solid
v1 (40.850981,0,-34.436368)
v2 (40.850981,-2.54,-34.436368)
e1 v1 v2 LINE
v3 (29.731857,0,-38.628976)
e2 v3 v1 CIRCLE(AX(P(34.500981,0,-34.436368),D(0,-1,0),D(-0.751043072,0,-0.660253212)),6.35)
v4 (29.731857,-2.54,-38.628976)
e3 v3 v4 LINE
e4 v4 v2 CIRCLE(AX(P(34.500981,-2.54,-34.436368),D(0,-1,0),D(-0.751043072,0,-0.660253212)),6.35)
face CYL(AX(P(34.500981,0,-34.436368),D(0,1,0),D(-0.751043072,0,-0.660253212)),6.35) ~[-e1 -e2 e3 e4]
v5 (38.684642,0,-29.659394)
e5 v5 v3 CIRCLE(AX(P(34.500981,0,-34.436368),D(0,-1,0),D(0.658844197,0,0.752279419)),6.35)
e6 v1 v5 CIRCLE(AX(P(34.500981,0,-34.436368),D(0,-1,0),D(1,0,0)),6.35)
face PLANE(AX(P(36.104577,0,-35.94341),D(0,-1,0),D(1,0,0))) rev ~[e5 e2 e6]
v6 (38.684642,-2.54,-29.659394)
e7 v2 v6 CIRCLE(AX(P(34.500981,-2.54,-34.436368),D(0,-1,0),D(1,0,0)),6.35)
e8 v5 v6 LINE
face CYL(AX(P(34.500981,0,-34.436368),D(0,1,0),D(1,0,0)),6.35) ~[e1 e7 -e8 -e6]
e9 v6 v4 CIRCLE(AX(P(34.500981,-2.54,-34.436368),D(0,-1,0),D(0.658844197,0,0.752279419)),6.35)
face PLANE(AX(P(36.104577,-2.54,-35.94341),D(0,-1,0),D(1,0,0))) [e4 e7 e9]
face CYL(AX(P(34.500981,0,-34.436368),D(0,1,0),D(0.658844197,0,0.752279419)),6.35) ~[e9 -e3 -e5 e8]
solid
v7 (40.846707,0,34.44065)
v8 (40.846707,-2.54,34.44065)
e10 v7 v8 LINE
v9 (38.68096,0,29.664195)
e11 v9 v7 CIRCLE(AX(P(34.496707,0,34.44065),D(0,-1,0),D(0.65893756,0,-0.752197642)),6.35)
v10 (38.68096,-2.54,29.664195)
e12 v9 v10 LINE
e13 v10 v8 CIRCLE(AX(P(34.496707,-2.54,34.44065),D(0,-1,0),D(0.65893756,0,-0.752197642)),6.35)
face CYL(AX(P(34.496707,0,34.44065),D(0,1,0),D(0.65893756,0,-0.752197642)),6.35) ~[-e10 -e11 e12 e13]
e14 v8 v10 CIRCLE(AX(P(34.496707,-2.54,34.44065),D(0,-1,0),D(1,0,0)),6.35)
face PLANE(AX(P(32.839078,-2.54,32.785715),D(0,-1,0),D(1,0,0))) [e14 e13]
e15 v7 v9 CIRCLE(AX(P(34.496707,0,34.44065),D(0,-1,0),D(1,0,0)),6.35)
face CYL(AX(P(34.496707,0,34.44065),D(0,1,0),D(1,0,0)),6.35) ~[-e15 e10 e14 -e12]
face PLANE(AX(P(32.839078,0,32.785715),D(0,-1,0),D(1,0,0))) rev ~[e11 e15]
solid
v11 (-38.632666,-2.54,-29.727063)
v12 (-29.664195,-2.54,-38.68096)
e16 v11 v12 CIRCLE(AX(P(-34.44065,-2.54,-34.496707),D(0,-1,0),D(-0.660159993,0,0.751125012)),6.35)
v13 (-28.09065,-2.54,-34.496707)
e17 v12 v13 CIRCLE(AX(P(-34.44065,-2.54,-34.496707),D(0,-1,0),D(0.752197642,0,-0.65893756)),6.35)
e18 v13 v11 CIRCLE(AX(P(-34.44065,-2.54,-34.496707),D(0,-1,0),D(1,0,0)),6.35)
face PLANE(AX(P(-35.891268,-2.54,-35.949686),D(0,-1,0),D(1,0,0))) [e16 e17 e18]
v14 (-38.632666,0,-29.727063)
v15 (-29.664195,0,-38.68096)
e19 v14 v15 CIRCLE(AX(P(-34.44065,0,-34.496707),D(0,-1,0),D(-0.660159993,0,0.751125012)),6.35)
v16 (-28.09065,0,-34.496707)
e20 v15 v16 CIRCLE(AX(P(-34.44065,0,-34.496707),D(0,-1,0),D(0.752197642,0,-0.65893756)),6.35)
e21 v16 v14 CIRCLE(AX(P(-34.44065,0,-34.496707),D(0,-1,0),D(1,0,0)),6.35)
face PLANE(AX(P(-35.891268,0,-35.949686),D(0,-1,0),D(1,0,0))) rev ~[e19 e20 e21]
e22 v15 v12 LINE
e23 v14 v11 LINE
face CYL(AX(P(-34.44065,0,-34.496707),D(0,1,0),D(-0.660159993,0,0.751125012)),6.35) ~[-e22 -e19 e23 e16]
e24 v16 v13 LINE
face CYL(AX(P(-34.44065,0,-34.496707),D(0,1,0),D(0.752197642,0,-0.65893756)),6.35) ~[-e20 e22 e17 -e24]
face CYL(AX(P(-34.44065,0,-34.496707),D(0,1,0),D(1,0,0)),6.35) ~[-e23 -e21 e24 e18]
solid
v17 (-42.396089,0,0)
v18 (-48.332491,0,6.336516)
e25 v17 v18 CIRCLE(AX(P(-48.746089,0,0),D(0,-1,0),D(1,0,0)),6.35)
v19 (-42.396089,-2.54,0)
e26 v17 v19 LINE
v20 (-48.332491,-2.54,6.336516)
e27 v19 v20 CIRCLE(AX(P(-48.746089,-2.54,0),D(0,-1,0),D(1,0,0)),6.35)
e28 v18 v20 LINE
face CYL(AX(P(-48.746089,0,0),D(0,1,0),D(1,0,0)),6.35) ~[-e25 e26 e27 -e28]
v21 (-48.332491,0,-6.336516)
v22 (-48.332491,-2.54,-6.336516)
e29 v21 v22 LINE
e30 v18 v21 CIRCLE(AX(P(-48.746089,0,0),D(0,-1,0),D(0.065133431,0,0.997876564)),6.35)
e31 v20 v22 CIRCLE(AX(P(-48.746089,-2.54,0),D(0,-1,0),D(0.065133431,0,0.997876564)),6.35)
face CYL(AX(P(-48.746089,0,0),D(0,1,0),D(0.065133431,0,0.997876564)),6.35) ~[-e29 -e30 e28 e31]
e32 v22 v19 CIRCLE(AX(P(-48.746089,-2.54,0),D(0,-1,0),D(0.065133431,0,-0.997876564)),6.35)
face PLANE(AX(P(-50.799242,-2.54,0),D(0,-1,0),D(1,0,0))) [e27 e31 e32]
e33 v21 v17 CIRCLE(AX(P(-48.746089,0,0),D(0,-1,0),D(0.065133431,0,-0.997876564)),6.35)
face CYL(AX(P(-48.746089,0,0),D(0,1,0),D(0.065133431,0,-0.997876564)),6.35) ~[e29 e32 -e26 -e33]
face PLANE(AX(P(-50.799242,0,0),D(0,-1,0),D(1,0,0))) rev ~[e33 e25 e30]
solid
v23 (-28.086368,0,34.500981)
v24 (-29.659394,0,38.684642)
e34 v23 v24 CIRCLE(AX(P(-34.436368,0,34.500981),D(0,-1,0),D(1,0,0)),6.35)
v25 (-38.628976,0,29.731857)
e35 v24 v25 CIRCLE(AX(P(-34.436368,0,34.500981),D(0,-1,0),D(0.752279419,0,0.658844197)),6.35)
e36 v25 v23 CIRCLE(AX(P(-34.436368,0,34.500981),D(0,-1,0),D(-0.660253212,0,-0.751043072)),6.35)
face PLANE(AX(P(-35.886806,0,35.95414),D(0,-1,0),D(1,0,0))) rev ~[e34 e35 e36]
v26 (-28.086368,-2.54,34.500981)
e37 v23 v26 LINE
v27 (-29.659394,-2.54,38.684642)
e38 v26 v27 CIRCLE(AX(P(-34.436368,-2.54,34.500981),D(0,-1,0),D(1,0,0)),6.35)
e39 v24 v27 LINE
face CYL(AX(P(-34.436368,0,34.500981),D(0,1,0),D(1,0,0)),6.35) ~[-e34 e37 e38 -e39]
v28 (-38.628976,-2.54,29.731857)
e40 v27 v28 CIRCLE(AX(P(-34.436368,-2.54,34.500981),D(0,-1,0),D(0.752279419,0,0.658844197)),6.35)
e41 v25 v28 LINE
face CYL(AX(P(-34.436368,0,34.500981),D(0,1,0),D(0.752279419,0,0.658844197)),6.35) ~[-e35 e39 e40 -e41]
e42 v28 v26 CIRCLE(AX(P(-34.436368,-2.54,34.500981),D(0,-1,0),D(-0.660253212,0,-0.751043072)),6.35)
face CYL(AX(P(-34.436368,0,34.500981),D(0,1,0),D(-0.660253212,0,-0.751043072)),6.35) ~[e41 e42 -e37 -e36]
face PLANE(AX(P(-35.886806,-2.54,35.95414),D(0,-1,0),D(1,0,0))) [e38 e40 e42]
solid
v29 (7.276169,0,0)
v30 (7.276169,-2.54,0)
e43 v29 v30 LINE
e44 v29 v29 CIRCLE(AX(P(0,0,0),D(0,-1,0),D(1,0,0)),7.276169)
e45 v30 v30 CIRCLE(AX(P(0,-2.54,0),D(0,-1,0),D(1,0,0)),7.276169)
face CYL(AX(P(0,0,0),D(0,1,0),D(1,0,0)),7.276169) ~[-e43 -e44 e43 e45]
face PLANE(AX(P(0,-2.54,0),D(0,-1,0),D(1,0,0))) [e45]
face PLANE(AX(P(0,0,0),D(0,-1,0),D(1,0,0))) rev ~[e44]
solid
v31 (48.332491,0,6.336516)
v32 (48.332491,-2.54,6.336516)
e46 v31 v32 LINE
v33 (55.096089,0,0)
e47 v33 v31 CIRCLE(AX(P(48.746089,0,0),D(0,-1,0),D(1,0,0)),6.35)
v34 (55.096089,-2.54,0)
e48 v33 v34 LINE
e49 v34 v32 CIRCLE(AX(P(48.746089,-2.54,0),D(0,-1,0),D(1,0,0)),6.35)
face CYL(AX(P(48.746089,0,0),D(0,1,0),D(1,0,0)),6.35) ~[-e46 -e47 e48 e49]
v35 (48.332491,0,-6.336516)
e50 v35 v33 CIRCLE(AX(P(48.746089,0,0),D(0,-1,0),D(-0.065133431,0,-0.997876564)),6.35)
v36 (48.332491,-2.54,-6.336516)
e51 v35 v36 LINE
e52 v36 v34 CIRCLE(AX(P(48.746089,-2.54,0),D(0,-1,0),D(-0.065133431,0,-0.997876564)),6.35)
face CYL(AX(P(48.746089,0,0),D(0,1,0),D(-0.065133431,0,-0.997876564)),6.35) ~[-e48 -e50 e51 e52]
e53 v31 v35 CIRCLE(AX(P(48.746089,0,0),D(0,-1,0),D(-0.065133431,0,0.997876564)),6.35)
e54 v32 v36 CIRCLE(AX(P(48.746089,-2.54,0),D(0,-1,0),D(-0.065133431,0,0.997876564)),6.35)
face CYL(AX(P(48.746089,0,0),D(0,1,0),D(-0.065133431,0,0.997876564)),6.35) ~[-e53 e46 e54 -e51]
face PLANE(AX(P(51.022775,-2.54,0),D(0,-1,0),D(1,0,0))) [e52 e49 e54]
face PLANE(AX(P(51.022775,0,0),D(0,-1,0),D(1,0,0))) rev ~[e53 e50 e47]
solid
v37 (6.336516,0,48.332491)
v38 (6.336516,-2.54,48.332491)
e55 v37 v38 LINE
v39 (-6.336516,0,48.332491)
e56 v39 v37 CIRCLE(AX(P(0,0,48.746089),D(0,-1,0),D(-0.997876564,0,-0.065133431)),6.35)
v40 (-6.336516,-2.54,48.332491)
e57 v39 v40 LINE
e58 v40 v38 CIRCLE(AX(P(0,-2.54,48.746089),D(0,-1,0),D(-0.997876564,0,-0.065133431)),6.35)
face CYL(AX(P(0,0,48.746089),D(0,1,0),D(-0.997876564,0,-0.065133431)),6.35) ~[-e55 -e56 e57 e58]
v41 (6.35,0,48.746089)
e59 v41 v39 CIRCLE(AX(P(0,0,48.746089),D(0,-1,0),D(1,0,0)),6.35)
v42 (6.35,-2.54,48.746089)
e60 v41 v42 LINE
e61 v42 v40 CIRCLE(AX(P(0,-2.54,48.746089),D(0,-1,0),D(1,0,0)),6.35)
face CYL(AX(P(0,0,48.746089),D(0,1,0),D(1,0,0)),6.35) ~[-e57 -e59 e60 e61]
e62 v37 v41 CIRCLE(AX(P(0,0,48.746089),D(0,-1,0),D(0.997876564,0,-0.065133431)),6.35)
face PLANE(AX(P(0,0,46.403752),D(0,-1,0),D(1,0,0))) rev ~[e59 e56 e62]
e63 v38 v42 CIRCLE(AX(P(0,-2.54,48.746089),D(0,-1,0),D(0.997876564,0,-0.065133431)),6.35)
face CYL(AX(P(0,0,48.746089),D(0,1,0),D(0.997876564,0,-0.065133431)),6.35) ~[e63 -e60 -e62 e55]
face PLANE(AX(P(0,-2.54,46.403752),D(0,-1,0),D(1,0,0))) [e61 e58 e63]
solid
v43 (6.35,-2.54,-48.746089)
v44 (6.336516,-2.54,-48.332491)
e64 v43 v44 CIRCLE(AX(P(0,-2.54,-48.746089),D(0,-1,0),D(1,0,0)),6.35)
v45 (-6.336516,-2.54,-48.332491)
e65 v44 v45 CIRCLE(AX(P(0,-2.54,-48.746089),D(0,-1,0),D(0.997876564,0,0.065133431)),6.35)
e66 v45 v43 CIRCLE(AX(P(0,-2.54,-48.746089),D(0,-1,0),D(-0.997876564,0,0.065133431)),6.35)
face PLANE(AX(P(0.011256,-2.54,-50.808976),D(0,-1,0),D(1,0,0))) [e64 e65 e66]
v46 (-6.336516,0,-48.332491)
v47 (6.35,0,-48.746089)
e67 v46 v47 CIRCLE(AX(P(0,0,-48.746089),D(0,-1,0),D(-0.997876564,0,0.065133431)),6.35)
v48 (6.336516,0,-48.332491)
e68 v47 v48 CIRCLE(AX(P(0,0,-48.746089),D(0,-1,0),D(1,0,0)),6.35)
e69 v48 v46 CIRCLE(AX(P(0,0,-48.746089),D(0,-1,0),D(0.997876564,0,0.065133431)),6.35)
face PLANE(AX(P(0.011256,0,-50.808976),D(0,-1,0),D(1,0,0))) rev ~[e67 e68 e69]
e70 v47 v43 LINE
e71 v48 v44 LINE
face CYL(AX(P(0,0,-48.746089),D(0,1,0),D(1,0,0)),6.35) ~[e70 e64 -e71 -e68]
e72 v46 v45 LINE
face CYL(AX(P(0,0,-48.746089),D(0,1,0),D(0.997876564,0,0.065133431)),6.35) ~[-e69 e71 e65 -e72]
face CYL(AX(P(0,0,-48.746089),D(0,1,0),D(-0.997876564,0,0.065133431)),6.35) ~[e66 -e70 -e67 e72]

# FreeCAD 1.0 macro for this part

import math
import FreeCAD as App
import Part
import Sketcher
from FreeCAD import Vector
Q = App.Units.Quantity

doc = App.newDocument("Part")
params = doc.addObject("Spreadsheet::Sheet", "Params")
for row, (alias, value) in enumerate([
    ("sketch1_radius", "0.25 in"),
    ("pad1_length", "0.1 in"),
    ("sketch2_radius", "0.25 in"),
    ("pad2_length", "0.1 in"),
    ("sketch3_radius", "0.25 in"),
    ("pad3_length", "0.1 in"),
    ("pad4_length", "0.1 in"),
    ("sketch5_radius", "0.25 in"),
    ("pad5_length", "0.1 in"),
    ("sketch6_radius", "0.25 in"),
    ("pad6_length", "0.1 in"),
    ("sketch7_radius", "0.25 in"),
    ("pad7_length", "0.1 in"),
    ("sketch8_radius", "0.25 in"),
    ("pad8_length", "0.1 in"),
    ("sketch9_radius", "0.25 in"),
    ("pad9_length", "0.1 in"),
], start=1):
    params.set(f"A{row}", alias)
    params.set(f"B{row}", "=" + value)
    params.setAlias(f"B{row}", alias)

body = doc.addObject("PartDesign::Body", "Body")

# Sketch on XZ plane
sketch1 = body.newObject("Sketcher::SketchObject", "Sketch")
sketch1.AttachmentSupport = (doc.getObject("XZ_Plane"), [""])
sketch1.MapMode = "FlatFace"
sketch1.addGeometry(Part.ArcOfCircle(Part.Circle(Vector(-34.436368, 34.500981, 0), Vector(0, 0, 1), 6.35), math.radians(41.211784), math.radians(228.680813)), False)
sketch1.addGeometry(Part.ArcOfCircle(Part.Circle(Vector(-34.436368, 34.500981, 0), Vector(0, 0, 1), 6.35), math.radians(-131.319187), math.radians(0)), False)
sketch1.addGeometry(Part.ArcOfCircle(Part.Circle(Vector(-34.436368, 34.500981, 0), Vector(0, 0, 1), 6.35), math.radians(0), math.radians(41.211784)), False)
sketch1.addConstraint(Sketcher.Constraint("Tangent", 0, 2, 1, 1))
sketch1.addConstraint(Sketcher.Constraint("Tangent", 1, 2, 2, 1))
sketch1.addConstraint(Sketcher.Constraint("Tangent", 2, 2, 0, 1))
sketch1.addConstraint(Sketcher.Constraint("Horizontal", 2, 3, 1, 2))
sketch1.addConstraint(Sketcher.Constraint("Radius", 0, Q("0.25 in")))
sketch1.addConstraint(Sketcher.Constraint("DistanceX", 0, 3, -1, 1, 34.436368))
sketch1.addConstraint(Sketcher.Constraint("DistanceY", -1, 1, 0, 3, 34.500981))
sketch1.addConstraint(Sketcher.Constraint("DistanceY", -1, 1, 2, 2, 38.684642))
sketch1.addConstraint(Sketcher.Constraint("DistanceX", 0, 2, -1, 1, 38.628976))
sketch1.setExpression("Constraints[4]", "Params.sketch1_radius")
pad1 = body.newObject("PartDesign::Pad", "Pad")
pad1.Profile = sketch1
pad1.setExpression("Length", "Params.pad1_length")
body2 = doc.addObject("PartDesign::Body", "Body001")

# Sketch on XZ plane
sketch2 = body2.newObject("Sketcher::SketchObject", "Sketch001")
sketch2.AttachmentSupport = (doc.getObject("XZ_Plane001"), [""])
sketch2.MapMode = "FlatFace"
sketch2.addGeometry(Part.ArcOfCircle(Part.Circle(Vector(0, 48.746089, 0), Vector(0, 0, 1), 6.35), math.radians(-176.265486), math.radians(-3.734514)), False)
sketch2.addGeometry(Part.ArcOfCircle(Part.Circle(Vector(0, 48.746089, 0), Vector(0, 0, 1), 6.35), math.radians(-3.734514), math.radians(0)), False)
sketch2.addGeometry(Part.ArcOfCircle(Part.Circle(Vector(0, 48.746089, 0), Vector(0, 0, 1), 6.35), math.radians(0), math.radians(183.734514)), False)
sketch2.addConstraint(Sketcher.Constraint("Tangent", 0, 2, 1, 1))
sketch2.addConstraint(Sketcher.Constraint("Tangent", 1, 2, 2, 1))
sketch2.addConstraint(Sketcher.Constraint("Tangent", 2, 2, 0, 1))
sketch2.addConstraint(Sketcher.Constraint("Symmetric", 0, 2, 2, 2, -2))
sketch2.addConstraint(Sketcher.Constraint("Horizontal", 2, 3, 1, 2))
sketch2.addConstraint(Sketcher.Constraint("Radius", 0, Q("0.25 in")))
sketch2.addConstraint(Sketcher.Constraint("DistanceY", -1, 1, 0, 3, 48.746089))
sketch2.addConstraint(Sketcher.Constraint("DistanceY", -1, 1, 0, 2, 48.332491))
sketch2.setExpression("Constraints[5]", "Params.sketch2_radius")
pad2 = body2.newObject("PartDesign::Pad", "Pad001")
pad2.Profile = sketch2
pad2.setExpression("Length", "Params.pad2_length")
body3 = doc.addObject("PartDesign::Body", "Body002")

# Sketch on XZ plane
sketch3 = body3.newObject("Sketcher::SketchObject", "Sketch002")
sketch3.AttachmentSupport = (doc.getObject("XZ_Plane002"), [""])
sketch3.MapMode = "FlatFace"
sketch3.addGeometry(Part.ArcOfCircle(Part.Circle(Vector(34.496707, 34.44065, 0), Vector(0, 0, 1), 6.35), math.radians(-48.781105), math.radians(0)), False)
sketch3.addGeometry(Part.ArcOfCircle(Part.Circle(Vector(34.496707, 34.44065, 0), Vector(0, 0, 1), 6.35), math.radians(0), math.radians(311.218895)), False)
sketch3.addConstraint(Sketcher.Constraint("Tangent", 0, 1, 1, 2))
sketch3.addConstraint(Sketcher.Constraint("Coincident", 1, 1, 0, 2))
sketch3.addConstraint(Sketcher.Constraint("Horizontal", 0, 3, 1, 1))
sketch3.addConstraint(Sketcher.Constraint("Radius", 0, Q("0.25 in")))
sketch3.addConstraint(Sketcher.Constraint("DistanceY", -1, 1, 0, 3, 34.44065))
sketch3.addConstraint(Sketcher.Constraint("DistanceX", -1, 1, 0, 1, 38.68096))
sketch3.addConstraint(Sketcher.Constraint("DistanceX", -1, 1, 0, 3, 34.496707))
sketch3.setExpression("Constraints[3]", "Params.sketch3_radius")
pad3 = body3.newObject("PartDesign::Pad", "Pad002")
pad3.Profile = sketch3
pad3.setExpression("Length", "Params.pad3_length")
body4 = doc.addObject("PartDesign::Body", "Body003")

# Sketch on XZ plane
sketch4 = body4.newObject("Sketcher::SketchObject", "Sketch003")
sketch4.AttachmentSupport = (doc.getObject("XZ_Plane003"), [""])
sketch4.MapMode = "FlatFace"
sketch4.addGeometry(Part.Circle(Vector(0, 0, 0), Vector(0, 0, 1), 7.276169), False)
sketch4.addConstraint(Sketcher.Constraint("Coincident", 0, 3, -1, 1))
sketch4.addConstraint(Sketcher.Constraint("Diameter", 0, 14.552338))
pad4 = body4.newObject("PartDesign::Pad", "Pad003")
pad4.Profile = sketch4
pad4.setExpression("Length", "Params.pad4_length")
body5 = doc.addObject("PartDesign::Body", "Body004")

# Sketch on XZ plane
sketch5 = body5.newObject("Sketcher::SketchObject", "Sketch004")
sketch5.AttachmentSupport = (doc.getObject("XZ_Plane004"), [""])
sketch5.MapMode = "FlatFace"
sketch5.addGeometry(Part.ArcOfCircle(Part.Circle(Vector(48.746089, 0, 0), Vector(0, 0, 1), 6.35), math.radians(0), math.radians(93.734514)), False)
sketch5.addGeometry(Part.ArcOfCircle(Part.Circle(Vector(48.746089, 0, 0), Vector(0, 0, 1), 6.35), math.radians(93.734514), math.radians(266.265486)), False)
sketch5.addGeometry(Part.ArcOfCircle(Part.Circle(Vector(48.746089, 0, 0), Vector(0, 0, 1), 6.35), math.radians(-93.734514), math.radians(0)), False)
sketch5.addConstraint(Sketcher.Constraint("Tangent", 0, 2, 1, 1))
sketch5.addConstraint(Sketcher.Constraint("Tangent", 1, 2, 2, 1))
sketch5.addConstraint(Sketcher.Constraint("Tangent", 2, 2, 0, 1))
sketch5.addConstraint(Sketcher.Constraint("Symmetric", 0, 2, 1, 2, -1))
sketch5.addConstraint(Sketcher.Constraint("PointOnObject", 2, 2, -1))
sketch5.addConstraint(Sketcher.Constraint("Radius", 0, Q("0.25 in")))
sketch5.addConstraint(Sketcher.Constraint("DistanceX", -1, 1, 0, 3, 48.746089))
sketch5.addConstraint(Sketcher.Constraint("DistanceX", -1, 1, 0, 2, 48.332491))
sketch5.setExpression("Constraints[5]", "Params.sketch5_radius")
pad5 = body5.newObject("PartDesign::Pad", "Pad004")
pad5.Profile = sketch5
pad5.setExpression("Length", "Params.pad5_length")
body6 = doc.addObject("PartDesign::Body", "Body005")

# Sketch on XZ plane
sketch6 = body6.newObject("Sketcher::SketchObject", "Sketch005")
sketch6.AttachmentSupport = (doc.getObject("XZ_Plane005"), [""])
sketch6.MapMode = "FlatFace"
sketch6.addGeometry(Part.ArcOfCircle(Part.Circle(Vector(34.500981, -34.436368, 0), Vector(0, 0, 1), 6.35), math.radians(0), math.radians(48.788216)), False)
sketch6.addGeometry(Part.ArcOfCircle(Part.Circle(Vector(34.500981, -34.436368, 0), Vector(0, 0, 1), 6.35), math.radians(48.788216), math.radians(221.319187)), False)
sketch6.addGeometry(Part.ArcOfCircle(Part.Circle(Vector(34.500981, -34.436368, 0), Vector(0, 0, 1), 6.35), math.radians(-138.680813), math.radians(0)), False)
sketch6.addConstraint(Sketcher.Constraint("Tangent", 0, 2, 1, 1))
sketch6.addConstraint(Sketcher.Constraint("Tangent", 1, 2, 2, 1))
sketch6.addConstraint(Sketcher.Constraint("Tangent", 2, 2, 0, 1))
sketch6.addConstraint(Sketcher.Constraint("Horizontal", 1, 3, 2, 2))
sketch6.addConstraint(Sketcher.Constraint("Radius", 0, Q("0.25 in")))
sketch6.addConstraint(Sketcher.Constraint("DistanceX", -1, 1, 0, 3, 34.500981))
sketch6.addConstraint(Sketcher.Constraint("DistanceY", 0, 3, -1, 1, 34.436368))
sketch6.addConstraint(Sketcher.Constraint("DistanceX", -1, 1, 0, 2, 38.684642))
sketch6.addConstraint(Sketcher.Constraint("DistanceX", -1, 1, 1, 2, 29.731857))
sketch6.setExpression("Constraints[4]", "Params.sketch6_radius")
pad6 = body6.newObject("PartDesign::Pad", "Pad005")
pad6.Profile = sketch6
pad6.setExpression("Length", "Params.pad6_length")
body7 = doc.addObject("PartDesign::Body", "Body006")

# Sketch on XZ plane
sketch7 = body7.newObject("Sketcher::SketchObject", "Sketch006")
sketch7.AttachmentSupport = (doc.getObject("XZ_Plane006"), [""])
sketch7.MapMode = "FlatFace"
sketch7.addGeometry(Part.ArcOfCircle(Part.Circle(Vector(0, -48.746089, 0), Vector(0, 0, 1), 6.35), math.radians(176.265486), math.radians(360)), False)
sketch7.addGeometry(Part.ArcOfCircle(Part.Circle(Vector(0, -48.746089, 0), Vector(0, 0, 1), 6.35), math.radians(0), math.radians(3.734514)), False)
sketch7.addGeometry(Part.ArcOfCircle(Part.Circle(Vector(0, -48.746089, 0), Vector(0, 0, 1), 6.35), math.radians(3.734514), math.radians(176.265486)), False)
sketch7.addConstraint(Sketcher.Constraint("Tangent", 0, 2, 1, 1))
sketch7.addConstraint(Sketcher.Constraint("Tangent", 1, 2, 2, 1))
sketch7.addConstraint(Sketcher.Constraint("Tangent", 2, 2, 0, 1))
sketch7.addConstraint(Sketcher.Constraint("Symmetric", 1, 2, 2, 2, -2))
sketch7.addConstraint(Sketcher.Constraint("Horizontal", 2, 3, 0, 2))
sketch7.addConstraint(Sketcher.Constraint("Radius", 0, Q("0.25 in")))
sketch7.addConstraint(Sketcher.Constraint("DistanceY", 0, 3, -1, 1, 48.746089))
sketch7.addConstraint(Sketcher.Constraint("DistanceY", 1, 2, -1, 1, 48.332491))
sketch7.setExpression("Constraints[5]", "Params.sketch7_radius")
pad7 = body7.newObject("PartDesign::Pad", "Pad006")
pad7.Profile = sketch7
pad7.setExpression("Length", "Params.pad7_length")
body8 = doc.addObject("PartDesign::Body", "Body007")

# Sketch on XZ plane
sketch8 = body8.newObject("Sketcher::SketchObject", "Sketch007")
sketch8.AttachmentSupport = (doc.getObject("XZ_Plane007"), [""])
sketch8.MapMode = "FlatFace"
sketch8.addGeometry(Part.ArcOfCircle(Part.Circle(Vector(-34.44065, -34.496707, 0), Vector(0, 0, 1), 6.35), math.radians(131.312076), math.radians(318.781105)), False)
sketch8.addGeometry(Part.ArcOfCircle(Part.Circle(Vector(-34.44065, -34.496707, 0), Vector(0, 0, 1), 6.35), math.radians(-41.218895), math.radians(0)), False)
sketch8.addGeometry(Part.ArcOfCircle(Part.Circle(Vector(-34.44065, -34.496707, 0), Vector(0, 0, 1), 6.35), math.radians(0), math.radians(131.312076)), False)
sketch8.addConstraint(Sketcher.Constraint("Tangent", 0, 2, 1, 1))
sketch8.addConstraint(Sketcher.Constraint("Tangent", 1, 2, 2, 1))
sketch8.addConstraint(Sketcher.Constraint("Tangent", 2, 2, 0, 1))
sketch8.addConstraint(Sketcher.Constraint("Horizontal", 2, 3, 1, 2))
sketch8.addConstraint(Sketcher.Constraint("Radius", 0, Q("0.25 in")))
sketch8.addConstraint(Sketcher.Constraint("DistanceX", 0, 3, -1, 1, 34.44065))
sketch8.addConstraint(Sketcher.Constraint("DistanceY", 0, 2, -1, 1, 38.68096))
sketch8.addConstraint(Sketcher.Constraint("DistanceX", 2, 2, 0, 2, 8.968471))
sketch8.addConstraint(Sketcher.Constraint("DistanceY", 0, 3, -1, 1, 34.496707))
sketch8.setExpression("Constraints[4]", "Params.sketch8_radius")
pad8 = body8.newObject("PartDesign::Pad", "Pad007")
pad8.Profile = sketch8
pad8.setExpression("Length", "Params.pad8_length")
body9 = doc.addObject("PartDesign::Body", "Body008")

# Sketch on XZ plane
sketch9 = body9.newObject("Sketcher::SketchObject", "Sketch008")
sketch9.AttachmentSupport = (doc.getObject("XZ_Plane008"), [""])
sketch9.MapMode = "FlatFace"
sketch9.addGeometry(Part.ArcOfCircle(Part.Circle(Vector(-48.746089, 0, 0), Vector(0, 0, 1), 6.35), math.radians(86.265486), math.radians(273.734514)), False)
sketch9.addGeometry(Part.ArcOfCircle(Part.Circle(Vector(-48.746089, 0, 0), Vector(0, 0, 1), 6.35), math.radians(-86.265486), math.radians(0)), False)
sketch9.addGeometry(Part.ArcOfCircle(Part.Circle(Vector(-48.746089, 0, 0), Vector(0, 0, 1), 6.35), math.radians(0), math.radians(86.265486)), False)
sketch9.addConstraint(Sketcher.Constraint("Tangent", 0, 2, 1, 1))
sketch9.addConstraint(Sketcher.Constraint("Tangent", 1, 2, 2, 1))
sketch9.addConstraint(Sketcher.Constraint("Tangent", 2, 2, 0, 1))
sketch9.addConstraint(Sketcher.Constraint("Symmetric", 0, 2, 2, 2, -1))
sketch9.addConstraint(Sketcher.Constraint("PointOnObject", 1, 2, -1))
sketch9.addConstraint(Sketcher.Constraint("Radius", 0, Q("0.25 in")))
sketch9.addConstraint(Sketcher.Constraint("DistanceX", 0, 3, -1, 1, 48.746089))
sketch9.addConstraint(Sketcher.Constraint("DistanceX", 0, 2, -1, 1, 48.332491))
sketch9.setExpression("Constraints[5]", "Params.sketch9_radius")
pad9 = body9.newObject("PartDesign::Pad", "Pad008")
pad9.Profile = sketch9
pad9.setExpression("Length", "Params.pad9_length")

doc.recompute()
